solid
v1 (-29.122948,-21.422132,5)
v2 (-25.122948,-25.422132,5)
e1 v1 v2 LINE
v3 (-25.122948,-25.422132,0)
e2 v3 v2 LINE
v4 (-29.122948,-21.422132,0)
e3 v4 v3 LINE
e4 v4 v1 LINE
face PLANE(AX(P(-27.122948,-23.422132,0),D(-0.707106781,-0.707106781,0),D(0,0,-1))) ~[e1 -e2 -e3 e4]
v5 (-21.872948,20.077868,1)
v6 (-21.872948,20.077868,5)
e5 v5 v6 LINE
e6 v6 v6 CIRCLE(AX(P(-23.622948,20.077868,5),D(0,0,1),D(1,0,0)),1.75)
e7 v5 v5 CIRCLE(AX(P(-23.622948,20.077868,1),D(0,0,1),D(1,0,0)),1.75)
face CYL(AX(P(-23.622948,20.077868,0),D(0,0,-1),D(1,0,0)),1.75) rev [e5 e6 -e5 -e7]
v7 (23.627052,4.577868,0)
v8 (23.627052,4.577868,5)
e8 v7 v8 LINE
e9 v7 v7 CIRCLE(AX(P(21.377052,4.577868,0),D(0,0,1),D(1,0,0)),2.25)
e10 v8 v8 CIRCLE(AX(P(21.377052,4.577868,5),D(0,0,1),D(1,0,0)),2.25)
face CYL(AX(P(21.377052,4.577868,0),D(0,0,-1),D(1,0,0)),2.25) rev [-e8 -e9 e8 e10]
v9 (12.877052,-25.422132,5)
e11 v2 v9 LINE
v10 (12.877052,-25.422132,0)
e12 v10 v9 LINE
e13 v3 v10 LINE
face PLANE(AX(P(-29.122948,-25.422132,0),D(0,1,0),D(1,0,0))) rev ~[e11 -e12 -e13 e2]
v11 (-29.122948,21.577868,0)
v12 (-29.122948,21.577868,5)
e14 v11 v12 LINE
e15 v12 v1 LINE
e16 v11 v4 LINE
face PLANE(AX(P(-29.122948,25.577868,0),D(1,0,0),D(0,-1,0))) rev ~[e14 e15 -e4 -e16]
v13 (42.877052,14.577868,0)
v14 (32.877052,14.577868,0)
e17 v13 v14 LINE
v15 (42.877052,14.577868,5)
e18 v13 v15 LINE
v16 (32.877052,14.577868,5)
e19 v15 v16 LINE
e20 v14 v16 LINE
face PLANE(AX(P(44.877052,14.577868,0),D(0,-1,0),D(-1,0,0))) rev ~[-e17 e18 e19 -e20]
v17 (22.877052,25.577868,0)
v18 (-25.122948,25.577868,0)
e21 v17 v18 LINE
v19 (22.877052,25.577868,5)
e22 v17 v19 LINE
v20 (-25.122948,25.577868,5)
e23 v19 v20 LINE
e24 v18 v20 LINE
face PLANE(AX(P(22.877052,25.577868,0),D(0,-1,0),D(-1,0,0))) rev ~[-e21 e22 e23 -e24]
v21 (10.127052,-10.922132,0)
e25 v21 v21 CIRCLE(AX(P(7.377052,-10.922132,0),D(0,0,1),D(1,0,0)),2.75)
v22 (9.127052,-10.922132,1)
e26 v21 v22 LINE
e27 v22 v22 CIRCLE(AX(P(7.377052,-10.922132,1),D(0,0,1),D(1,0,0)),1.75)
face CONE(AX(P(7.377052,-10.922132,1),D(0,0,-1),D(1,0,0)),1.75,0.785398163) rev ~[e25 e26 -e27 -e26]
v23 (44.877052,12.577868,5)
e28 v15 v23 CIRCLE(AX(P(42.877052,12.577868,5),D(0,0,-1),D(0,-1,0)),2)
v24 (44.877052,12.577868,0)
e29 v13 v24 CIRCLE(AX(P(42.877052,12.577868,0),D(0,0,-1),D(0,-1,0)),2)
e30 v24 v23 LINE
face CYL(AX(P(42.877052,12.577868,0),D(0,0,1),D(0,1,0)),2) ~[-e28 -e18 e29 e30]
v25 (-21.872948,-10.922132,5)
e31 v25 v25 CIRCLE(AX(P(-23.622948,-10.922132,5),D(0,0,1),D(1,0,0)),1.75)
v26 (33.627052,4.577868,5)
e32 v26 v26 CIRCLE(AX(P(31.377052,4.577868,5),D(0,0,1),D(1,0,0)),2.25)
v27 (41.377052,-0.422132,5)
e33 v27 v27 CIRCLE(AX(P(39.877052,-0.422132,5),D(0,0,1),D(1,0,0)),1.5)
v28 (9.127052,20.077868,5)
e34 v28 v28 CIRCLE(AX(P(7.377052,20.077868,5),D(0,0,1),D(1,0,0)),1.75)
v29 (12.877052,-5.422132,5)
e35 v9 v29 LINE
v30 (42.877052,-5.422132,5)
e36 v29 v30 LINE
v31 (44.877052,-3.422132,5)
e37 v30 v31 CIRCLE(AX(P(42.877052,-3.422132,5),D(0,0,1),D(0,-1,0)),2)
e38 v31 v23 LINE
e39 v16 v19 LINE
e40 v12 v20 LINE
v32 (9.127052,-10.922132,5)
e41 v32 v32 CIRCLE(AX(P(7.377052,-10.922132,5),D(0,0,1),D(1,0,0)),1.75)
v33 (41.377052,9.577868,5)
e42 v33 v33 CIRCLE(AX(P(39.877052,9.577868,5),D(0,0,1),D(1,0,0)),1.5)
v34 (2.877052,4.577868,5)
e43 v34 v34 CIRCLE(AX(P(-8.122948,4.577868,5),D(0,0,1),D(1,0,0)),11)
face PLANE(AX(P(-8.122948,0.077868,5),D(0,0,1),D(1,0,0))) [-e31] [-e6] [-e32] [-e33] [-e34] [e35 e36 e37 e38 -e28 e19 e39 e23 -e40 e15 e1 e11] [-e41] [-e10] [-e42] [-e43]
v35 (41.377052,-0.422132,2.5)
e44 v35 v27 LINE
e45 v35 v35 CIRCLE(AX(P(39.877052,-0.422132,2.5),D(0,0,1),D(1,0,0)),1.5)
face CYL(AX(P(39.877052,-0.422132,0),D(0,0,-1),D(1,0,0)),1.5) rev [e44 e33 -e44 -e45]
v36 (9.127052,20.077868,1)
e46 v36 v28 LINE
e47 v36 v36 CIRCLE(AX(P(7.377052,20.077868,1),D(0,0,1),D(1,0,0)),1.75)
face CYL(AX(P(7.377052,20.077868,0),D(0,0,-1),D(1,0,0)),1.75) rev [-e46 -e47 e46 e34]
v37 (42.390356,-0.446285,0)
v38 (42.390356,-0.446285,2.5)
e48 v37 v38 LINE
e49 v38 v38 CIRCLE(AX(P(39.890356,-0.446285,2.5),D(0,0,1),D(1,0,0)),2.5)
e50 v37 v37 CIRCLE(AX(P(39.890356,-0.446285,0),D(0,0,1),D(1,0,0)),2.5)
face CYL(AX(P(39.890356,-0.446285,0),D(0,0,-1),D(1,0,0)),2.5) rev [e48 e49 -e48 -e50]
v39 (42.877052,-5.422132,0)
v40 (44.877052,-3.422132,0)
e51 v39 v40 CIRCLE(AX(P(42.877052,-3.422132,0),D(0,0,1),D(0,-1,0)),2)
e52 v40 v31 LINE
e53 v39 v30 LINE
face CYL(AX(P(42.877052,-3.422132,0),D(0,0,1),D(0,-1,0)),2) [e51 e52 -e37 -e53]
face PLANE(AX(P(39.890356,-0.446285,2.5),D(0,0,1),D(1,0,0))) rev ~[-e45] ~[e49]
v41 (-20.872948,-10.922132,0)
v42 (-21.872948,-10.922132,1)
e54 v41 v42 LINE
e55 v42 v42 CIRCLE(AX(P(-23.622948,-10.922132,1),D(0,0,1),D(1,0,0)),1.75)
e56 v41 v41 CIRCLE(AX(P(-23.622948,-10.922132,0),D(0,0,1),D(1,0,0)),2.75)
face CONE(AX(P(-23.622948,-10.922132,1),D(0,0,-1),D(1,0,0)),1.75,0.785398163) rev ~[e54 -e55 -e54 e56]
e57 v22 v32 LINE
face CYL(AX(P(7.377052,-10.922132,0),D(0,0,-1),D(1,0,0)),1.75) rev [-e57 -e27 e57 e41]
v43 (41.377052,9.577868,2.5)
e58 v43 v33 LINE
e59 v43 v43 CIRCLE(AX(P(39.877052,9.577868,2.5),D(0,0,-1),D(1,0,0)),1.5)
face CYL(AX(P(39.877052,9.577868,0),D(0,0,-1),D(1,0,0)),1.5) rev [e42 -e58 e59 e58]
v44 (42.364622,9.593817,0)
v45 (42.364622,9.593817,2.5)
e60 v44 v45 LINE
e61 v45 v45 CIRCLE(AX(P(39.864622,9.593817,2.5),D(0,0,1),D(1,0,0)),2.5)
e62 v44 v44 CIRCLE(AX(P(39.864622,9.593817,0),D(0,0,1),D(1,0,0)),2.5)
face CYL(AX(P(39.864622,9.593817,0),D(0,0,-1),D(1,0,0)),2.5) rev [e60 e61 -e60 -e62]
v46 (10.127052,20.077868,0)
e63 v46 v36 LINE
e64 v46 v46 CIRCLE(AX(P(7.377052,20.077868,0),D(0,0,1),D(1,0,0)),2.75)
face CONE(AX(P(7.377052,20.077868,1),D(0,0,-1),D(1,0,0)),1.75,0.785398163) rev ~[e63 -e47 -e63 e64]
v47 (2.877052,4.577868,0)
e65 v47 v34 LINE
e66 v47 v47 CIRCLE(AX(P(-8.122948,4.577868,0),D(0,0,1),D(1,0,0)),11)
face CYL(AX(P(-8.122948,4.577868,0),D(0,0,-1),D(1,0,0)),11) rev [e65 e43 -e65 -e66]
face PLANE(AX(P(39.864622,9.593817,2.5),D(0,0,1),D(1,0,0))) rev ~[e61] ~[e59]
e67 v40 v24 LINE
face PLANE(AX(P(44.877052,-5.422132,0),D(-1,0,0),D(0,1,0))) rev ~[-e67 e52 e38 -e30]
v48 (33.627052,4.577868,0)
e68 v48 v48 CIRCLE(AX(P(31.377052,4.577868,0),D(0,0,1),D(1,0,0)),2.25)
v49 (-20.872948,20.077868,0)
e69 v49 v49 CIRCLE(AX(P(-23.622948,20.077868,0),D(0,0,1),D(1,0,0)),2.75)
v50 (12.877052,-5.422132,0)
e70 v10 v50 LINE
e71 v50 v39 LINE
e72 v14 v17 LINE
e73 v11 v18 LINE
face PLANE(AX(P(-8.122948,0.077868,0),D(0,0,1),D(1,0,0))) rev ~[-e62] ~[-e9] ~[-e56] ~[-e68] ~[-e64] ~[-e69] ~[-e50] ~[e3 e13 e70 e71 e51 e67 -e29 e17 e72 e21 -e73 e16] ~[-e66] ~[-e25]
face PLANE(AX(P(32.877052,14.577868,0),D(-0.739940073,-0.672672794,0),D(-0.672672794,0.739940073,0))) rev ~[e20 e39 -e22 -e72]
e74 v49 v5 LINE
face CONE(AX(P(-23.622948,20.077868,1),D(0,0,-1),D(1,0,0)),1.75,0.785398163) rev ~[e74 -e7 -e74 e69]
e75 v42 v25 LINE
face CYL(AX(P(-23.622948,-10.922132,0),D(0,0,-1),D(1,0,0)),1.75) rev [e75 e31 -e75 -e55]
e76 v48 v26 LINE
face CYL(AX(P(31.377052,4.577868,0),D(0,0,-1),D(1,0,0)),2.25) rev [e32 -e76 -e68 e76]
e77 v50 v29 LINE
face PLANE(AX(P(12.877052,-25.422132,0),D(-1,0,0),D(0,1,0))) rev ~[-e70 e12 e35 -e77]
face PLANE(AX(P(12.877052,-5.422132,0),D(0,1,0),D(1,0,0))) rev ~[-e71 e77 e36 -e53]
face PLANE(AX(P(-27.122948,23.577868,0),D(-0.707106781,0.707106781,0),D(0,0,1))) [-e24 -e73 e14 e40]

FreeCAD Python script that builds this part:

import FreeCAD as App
import Part
import Sketcher
from FreeCAD import Vector
Q = App.Units.Quantity


def edges_at(feature, points):
    """Names of the edges that pass closest to the given points."""
    edges = feature.Shape.Edges
    near = lambda p: min(range(len(edges)), key=lambda i: edges[i].distToShape(Part.Vertex(*p))[0])
    return sorted({f"Edge{near(p) + 1}" for p in points})

doc = App.newDocument("Part")
params = doc.addObject("Spreadsheet::Sheet", "Params")
for row, (alias, value) in enumerate([
    ("sketch1_diameter", "3 mm"),
    ("sketch1_diameter2", "22 mm"),
    ("sketch1_diameter3", "3.5 mm"),
    ("sketch1_diameter4", "4.5 mm"),
    ("sketch1_width", "42 mm"),
    ("pad1_length", "5 mm"),
    ("sketch2_diameter", "5 mm"),
    ("sketch2_diameter2", "3 mm"),
    ("pocket1_length", "2.5 mm"),
    ("chamfer_size", "1 mm"),
    ("chamfer2_size", "4 mm"),
    ("fillet_radius", "2 mm"),
], start=1):
    params.set(f"A{row}", alias)
    params.set(f"B{row}", "=" + value)
    params.setAlias(f"B{row}", alias)

body = doc.addObject("PartDesign::Body", "Body")

sketch1 = body.newObject("Sketcher::SketchObject", "Sketch")
sketch1.AttachmentSupport = (doc.getObject("XY_Plane"), [""])
sketch1.MapMode = "FlatFace"
sketch1.addGeometry([
    Part.LineSegment(Vector(-29.1, 25.6, 0), Vector(-29.1, -25.4, 0)),
    Part.LineSegment(Vector(-29.1, -25.4, 0), Vector(12.9, -25.4, 0)),
    Part.LineSegment(Vector(12.9, -25.4, 0), Vector(12.9, -5.4, 0)),
    Part.LineSegment(Vector(12.9, -5.4, 0), Vector(44.9, -5.4, 0)),
    Part.LineSegment(Vector(44.9, -5.4, 0), Vector(44.9, 14.6, 0)),
    Part.LineSegment(Vector(44.9, 14.6, 0), Vector(32.9, 14.6, 0)),
    Part.LineSegment(Vector(32.9, 14.6, 0), Vector(22.9, 25.6, 0)),
    Part.LineSegment(Vector(22.9, 25.6, 0), Vector(-29.1, 25.6, 0)),
    Part.Circle(Vector(-23.6, -10.9, 0), Vector(0, 0, 1), 1.8),
    Part.Circle(Vector(7.4, -10.9, 0), Vector(0, 0, 1), 1.8),
    Part.Circle(Vector(39.9, -0.4, 0), Vector(0, 0, 1), 1.5),
    Part.Circle(Vector(-8.1, 4.6, 0), Vector(0, 0, 1), 11),
    Part.Circle(Vector(-23.6, 20.1, 0), Vector(0, 0, 1), 1.8),
    Part.Circle(Vector(7.4, 20.1, 0), Vector(0, 0, 1), 1.8),
    Part.Circle(Vector(21.4, 4.6, 0), Vector(0, 0, 1), 2.2),
    Part.Circle(Vector(31.4, 4.6, 0), Vector(0, 0, 1), 2.2),
    Part.Circle(Vector(39.9, 9.6, 0), Vector(0, 0, 1), 1.5),
], False)
sketch1.addConstraint([
    Sketcher.Constraint("Coincident", 0, 2, 1, 1),
    Sketcher.Constraint("Coincident", 1, 2, 2, 1),
    Sketcher.Constraint("Coincident", 2, 2, 3, 1),
    Sketcher.Constraint("Coincident", 3, 2, 4, 1),
    Sketcher.Constraint("Coincident", 4, 2, 5, 1),
    Sketcher.Constraint("Coincident", 5, 2, 6, 1),
    Sketcher.Constraint("Coincident", 6, 2, 7, 1),
    Sketcher.Constraint("Coincident", 7, 2, 0, 1),
    Sketcher.Constraint("Vertical", 0),
    Sketcher.Constraint("Horizontal", 1),
    Sketcher.Constraint("Vertical", 2),
    Sketcher.Constraint("Horizontal", 3),
    Sketcher.Constraint("Vertical", 4),
    Sketcher.Constraint("Horizontal", 5),
    Sketcher.Constraint("Horizontal", 7),
    Sketcher.Constraint("Equal", 8, 9),
    Sketcher.Constraint("Equal", 9, 12),
    Sketcher.Constraint("Equal", 12, 13),
    Sketcher.Constraint("Equal", 14, 15),
    Sketcher.Constraint("Equal", 10, 16),
    Sketcher.Constraint("Horizontal", 8, 3, 9, 3),
    Sketcher.Constraint("Horizontal", 12, 3, 13, 3),
    Sketcher.Constraint("Horizontal", 11, 3, 14, 3),
    Sketcher.Constraint("Horizontal", 14, 3, 15, 3),
    Sketcher.Constraint("Vertical", 8, 3, 12, 3),
    Sketcher.Constraint("Vertical", 9, 3, 13, 3),
    Sketcher.Constraint("Vertical", 10, 3, 16, 3),
    Sketcher.Constraint("Equal", 2, 4),
    Sketcher.Constraint("Diameter", 10, Q("3 mm")),
    Sketcher.Constraint("Diameter", 11, Q("22 mm")),
    Sketcher.Constraint("Diameter", 8, Q("3.5 mm")),
    Sketcher.Constraint("Diameter", 14, Q("4.5 mm")),
    Sketcher.Constraint("DistanceX", 1, 1, 1, 2, Q("42 mm")),
    Sketcher.Constraint("DistanceX", 3, 1, 3, 2, Q("32 mm")),
    Sketcher.Constraint("DistanceX", 5, 2, 5, 1, Q("12 mm")),
    Sketcher.Constraint("DistanceX", 7, 2, 7, 1, Q("52 mm")),
    Sketcher.Constraint("DistanceY", 0, 2, 0, 1, Q("51 mm")),
    Sketcher.Constraint("DistanceY", 2, 1, 2, 2, Q("20 mm")),
    Sketcher.Constraint("DistanceX", 8, 3, 9, 3, Q("31 mm")),
    Sketcher.Constraint("DistanceX", 11, 3, 10, 3, Q("48 mm")),
    Sketcher.Constraint("DistanceY", 10, 3, 11, 3, Q("5 mm")),
    Sketcher.Constraint("DistanceY", 8, 3, 12, 3, Q("31 mm")),
    Sketcher.Constraint("DistanceX", 9, 3, 14, 3, Q("14 mm")),
    Sketcher.Constraint("DistanceX", 14, 3, 15, 3, Q("10 mm")),
    Sketcher.Constraint("DistanceY", 15, 3, 16, 3, Q("5 mm")),
    Sketcher.Constraint("DistanceX", 0, 2, 11, 3, Q("21 mm")),
    Sketcher.Constraint("DistanceY", 0, 2, 11, 3, Q("30 mm")),
    Sketcher.Constraint("DistanceX", 9, 3, 10, 3, Q("32.5 mm")),
    Sketcher.Constraint("DistanceY", 9, 3, 10, 3, Q("10.5 mm")),
    Sketcher.Constraint("DistanceX", 8, 3, -1, 1, Q("23.622948 mm")),
    Sketcher.Constraint("DistanceY", 8, 3, -1, 1, Q("10.922132 mm")),
])
sketch1.setExpression("Constraints[28]", "Params.sketch1_diameter")
sketch1.setExpression("Constraints[29]", "Params.sketch1_diameter2")
sketch1.setExpression("Constraints[30]", "Params.sketch1_diameter3")
sketch1.setExpression("Constraints[31]", "Params.sketch1_diameter4")
sketch1.setExpression("Constraints[32]", "Params.sketch1_width")
pad1 = body.newObject("PartDesign::Pad", "Pad")
pad1.Profile = sketch1
pad1.setExpression("Length", "Params.pad1_length")

sketch2 = body.newObject("Sketcher::SketchObject", "Sketch001")
sketch2.AttachmentSupport = (doc.getObject("XY_Plane"), [""])
sketch2.MapMode = "FlatFace"
sketch2.addGeometry([
    Part.Circle(Vector(39.9, -0.4, 0), Vector(0, 0, 1), 2.5),
    Part.Circle(Vector(39.9, -0.4, 0), Vector(0, 0, 1), 1.5),
    Part.Circle(Vector(39.9, 9.6, 0), Vector(0, 0, 1), 2.5),
], False)
sketch2.addConstraint([
    Sketcher.Constraint("Equal", 0, 2),
    Sketcher.Constraint("Diameter", 0, Q("5 mm")),
    Sketcher.Constraint("Diameter", 1, Q("3 mm")),
    Sketcher.Constraint("DistanceY", 0, 3, 2, 3, Q("10.040102 mm")),
    Sketcher.Constraint("DistanceX", -1, 1, 2, 3, Q("39.864622 mm")),
    Sketcher.Constraint("DistanceX", 2, 3, 1, 3, Q("0.01243 mm")),
    Sketcher.Constraint("DistanceY", 1, 3, 2, 3, Q("10.015949 mm")),
    Sketcher.Constraint("DistanceX", -1, 1, 0, 3, Q("39.890356 mm")),
    Sketcher.Constraint("DistanceY", 0, 3, -1, 1, Q("0.446285 mm")),
])
sketch2.setExpression("Constraints[1]", "Params.sketch2_diameter")
sketch2.setExpression("Constraints[2]", "Params.sketch2_diameter2")
pocket1 = body.newObject("PartDesign::Pocket", "Pocket")
pocket1.Profile = sketch2
pocket1.setExpression("Length", "Params.pocket1_length")
pocket1.Reversed = True
doc.recompute()

chamfer = body.newObject("PartDesign::Chamfer", "Chamfer")
chamfer.Base = (pocket1, edges_at(pocket1, [
    (-25.373, 20.078, 0),
    (5.627, 20.078, 0),
    (5.627, -10.922, 0),
    (-25.373, -10.922, 0),
]))
chamfer.setExpression("Size", "Params.chamfer_size")
doc.recompute()

chamfer2 = body.newObject("PartDesign::Chamfer", "Chamfer001")
chamfer2.Base = (chamfer, edges_at(chamfer, [(-29.123, 25.578, 2.5), (-29.123, -25.422, 2.5)]))
chamfer2.setExpression("Size", "Params.chamfer2_size")
doc.recompute()

fillet = body.newObject("PartDesign::Fillet", "Fillet")
fillet.Base = (chamfer2, edges_at(chamfer2, [(44.877, 14.578, 2.5), (44.877, -5.422, 2.5)]))
fillet.setExpression("Radius", "Params.fillet_radius")

doc.recompute()
